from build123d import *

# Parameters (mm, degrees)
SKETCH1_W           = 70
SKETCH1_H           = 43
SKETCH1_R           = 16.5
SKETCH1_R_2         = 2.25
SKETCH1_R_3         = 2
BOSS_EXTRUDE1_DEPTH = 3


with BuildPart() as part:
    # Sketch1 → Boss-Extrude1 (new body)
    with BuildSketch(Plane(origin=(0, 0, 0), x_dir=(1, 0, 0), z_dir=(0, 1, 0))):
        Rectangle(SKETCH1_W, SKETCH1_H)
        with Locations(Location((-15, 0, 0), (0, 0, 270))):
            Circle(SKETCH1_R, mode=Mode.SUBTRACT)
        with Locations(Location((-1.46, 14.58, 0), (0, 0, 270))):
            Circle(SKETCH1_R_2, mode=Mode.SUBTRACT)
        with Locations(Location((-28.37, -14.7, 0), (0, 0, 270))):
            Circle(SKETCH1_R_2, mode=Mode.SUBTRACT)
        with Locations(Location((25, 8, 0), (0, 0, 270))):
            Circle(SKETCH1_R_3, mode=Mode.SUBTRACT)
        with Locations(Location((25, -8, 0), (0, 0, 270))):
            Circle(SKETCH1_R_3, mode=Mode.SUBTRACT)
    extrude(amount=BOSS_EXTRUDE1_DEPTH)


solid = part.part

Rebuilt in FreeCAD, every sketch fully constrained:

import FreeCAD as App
import Part
import Sketcher

doc = App.newDocument("Part")
body = doc.addObject("PartDesign::Body", "Body")

sketch1 = doc.addObject("Sketcher::SketchObject", "Sketch")
body.addObject(sketch1)
sketch1.AttachmentSupport = (doc.XZ_Plane, [""])
sketch1.MapMode = "FlatFace"
sketch1.addGeometry([
    Part.LineSegment(App.Vector(-35, -21.5, 0), App.Vector(-35, 21.5, 0)),
    Part.LineSegment(App.Vector(-35, 21.5, 0), App.Vector(35, 21.5, 0)),
    Part.LineSegment(App.Vector(35, 21.5, 0), App.Vector(35, -21.5, 0)),
    Part.LineSegment(App.Vector(35, -21.5, 0), App.Vector(-35, -21.5, 0)),
    Part.Circle(App.Vector(-28.37, 14.7, 0), App.Vector(0, 0, 1), 2.25),
    Part.Circle(App.Vector(25, 8, 0), App.Vector(0, 0, 1), 2),
    Part.Circle(App.Vector(-15, 0, 0), App.Vector(0, 0, 1), 16.5),
    Part.Circle(App.Vector(25, -8, 0), App.Vector(0, 0, 1), 2),
    Part.Circle(App.Vector(-1.46, -14.58, 0), App.Vector(0, 0, 1), 2.25),
], False)
sketch1.addConstraint([
    Sketcher.Constraint("Coincident", 0, 2, 1, 1),
    Sketcher.Constraint("Coincident", 1, 2, 2, 1),
    Sketcher.Constraint("Coincident", 2, 2, 3, 1),
    Sketcher.Constraint("Coincident", 3, 2, 0, 1),
    Sketcher.Constraint("Vertical", 0),
    Sketcher.Constraint("Horizontal", 1),
    Sketcher.Constraint("Vertical", 2),
    Sketcher.Constraint("Horizontal", 3),
    Sketcher.Constraint("Equal", 5, 7),
    Sketcher.Constraint("Equal", 4, 8),
    Sketcher.Constraint("Symmetric", 0, 2, 2, 2, -1, 1),
    Sketcher.Constraint("Symmetric", 5, 3, 7, 3, -1),
    Sketcher.Constraint("PointOnObject", 6, 3, -1),
    Sketcher.Constraint("Diameter", 5, 4.0),
    Sketcher.Constraint("Diameter", 6, 33.0),
    Sketcher.Constraint("Diameter", 4, 4.5),
    Sketcher.Constraint("DistanceX", 1, 1, 1, 2, 70.0),
    Sketcher.Constraint("DistanceY", 0, 1, 0, 2, 43.0),
    Sketcher.Constraint("DistanceX", -1, 1, 5, 3, 25.0),
    Sketcher.Constraint("DistanceY", -1, 1, 5, 3, 8.0),
    Sketcher.Constraint("DistanceX", 6, 3, -1, 1, 15.0),
    Sketcher.Constraint("DistanceY", -1, 1, 4, 3, 14.7),
    Sketcher.Constraint("DistanceX", 4, 3, -1, 1, 28.37),
    Sketcher.Constraint("DistanceX", 8, 3, -1, 1, 1.46),
    Sketcher.Constraint("DistanceY", 8, 3, -1, 1, 14.58),
])
pad1 = doc.addObject("PartDesign::Pad", "Pad")
body.addObject(pad1)
pad1.Profile = sketch1
pad1.Length = 3
pad1.Reversed = True

doc.recompute()
